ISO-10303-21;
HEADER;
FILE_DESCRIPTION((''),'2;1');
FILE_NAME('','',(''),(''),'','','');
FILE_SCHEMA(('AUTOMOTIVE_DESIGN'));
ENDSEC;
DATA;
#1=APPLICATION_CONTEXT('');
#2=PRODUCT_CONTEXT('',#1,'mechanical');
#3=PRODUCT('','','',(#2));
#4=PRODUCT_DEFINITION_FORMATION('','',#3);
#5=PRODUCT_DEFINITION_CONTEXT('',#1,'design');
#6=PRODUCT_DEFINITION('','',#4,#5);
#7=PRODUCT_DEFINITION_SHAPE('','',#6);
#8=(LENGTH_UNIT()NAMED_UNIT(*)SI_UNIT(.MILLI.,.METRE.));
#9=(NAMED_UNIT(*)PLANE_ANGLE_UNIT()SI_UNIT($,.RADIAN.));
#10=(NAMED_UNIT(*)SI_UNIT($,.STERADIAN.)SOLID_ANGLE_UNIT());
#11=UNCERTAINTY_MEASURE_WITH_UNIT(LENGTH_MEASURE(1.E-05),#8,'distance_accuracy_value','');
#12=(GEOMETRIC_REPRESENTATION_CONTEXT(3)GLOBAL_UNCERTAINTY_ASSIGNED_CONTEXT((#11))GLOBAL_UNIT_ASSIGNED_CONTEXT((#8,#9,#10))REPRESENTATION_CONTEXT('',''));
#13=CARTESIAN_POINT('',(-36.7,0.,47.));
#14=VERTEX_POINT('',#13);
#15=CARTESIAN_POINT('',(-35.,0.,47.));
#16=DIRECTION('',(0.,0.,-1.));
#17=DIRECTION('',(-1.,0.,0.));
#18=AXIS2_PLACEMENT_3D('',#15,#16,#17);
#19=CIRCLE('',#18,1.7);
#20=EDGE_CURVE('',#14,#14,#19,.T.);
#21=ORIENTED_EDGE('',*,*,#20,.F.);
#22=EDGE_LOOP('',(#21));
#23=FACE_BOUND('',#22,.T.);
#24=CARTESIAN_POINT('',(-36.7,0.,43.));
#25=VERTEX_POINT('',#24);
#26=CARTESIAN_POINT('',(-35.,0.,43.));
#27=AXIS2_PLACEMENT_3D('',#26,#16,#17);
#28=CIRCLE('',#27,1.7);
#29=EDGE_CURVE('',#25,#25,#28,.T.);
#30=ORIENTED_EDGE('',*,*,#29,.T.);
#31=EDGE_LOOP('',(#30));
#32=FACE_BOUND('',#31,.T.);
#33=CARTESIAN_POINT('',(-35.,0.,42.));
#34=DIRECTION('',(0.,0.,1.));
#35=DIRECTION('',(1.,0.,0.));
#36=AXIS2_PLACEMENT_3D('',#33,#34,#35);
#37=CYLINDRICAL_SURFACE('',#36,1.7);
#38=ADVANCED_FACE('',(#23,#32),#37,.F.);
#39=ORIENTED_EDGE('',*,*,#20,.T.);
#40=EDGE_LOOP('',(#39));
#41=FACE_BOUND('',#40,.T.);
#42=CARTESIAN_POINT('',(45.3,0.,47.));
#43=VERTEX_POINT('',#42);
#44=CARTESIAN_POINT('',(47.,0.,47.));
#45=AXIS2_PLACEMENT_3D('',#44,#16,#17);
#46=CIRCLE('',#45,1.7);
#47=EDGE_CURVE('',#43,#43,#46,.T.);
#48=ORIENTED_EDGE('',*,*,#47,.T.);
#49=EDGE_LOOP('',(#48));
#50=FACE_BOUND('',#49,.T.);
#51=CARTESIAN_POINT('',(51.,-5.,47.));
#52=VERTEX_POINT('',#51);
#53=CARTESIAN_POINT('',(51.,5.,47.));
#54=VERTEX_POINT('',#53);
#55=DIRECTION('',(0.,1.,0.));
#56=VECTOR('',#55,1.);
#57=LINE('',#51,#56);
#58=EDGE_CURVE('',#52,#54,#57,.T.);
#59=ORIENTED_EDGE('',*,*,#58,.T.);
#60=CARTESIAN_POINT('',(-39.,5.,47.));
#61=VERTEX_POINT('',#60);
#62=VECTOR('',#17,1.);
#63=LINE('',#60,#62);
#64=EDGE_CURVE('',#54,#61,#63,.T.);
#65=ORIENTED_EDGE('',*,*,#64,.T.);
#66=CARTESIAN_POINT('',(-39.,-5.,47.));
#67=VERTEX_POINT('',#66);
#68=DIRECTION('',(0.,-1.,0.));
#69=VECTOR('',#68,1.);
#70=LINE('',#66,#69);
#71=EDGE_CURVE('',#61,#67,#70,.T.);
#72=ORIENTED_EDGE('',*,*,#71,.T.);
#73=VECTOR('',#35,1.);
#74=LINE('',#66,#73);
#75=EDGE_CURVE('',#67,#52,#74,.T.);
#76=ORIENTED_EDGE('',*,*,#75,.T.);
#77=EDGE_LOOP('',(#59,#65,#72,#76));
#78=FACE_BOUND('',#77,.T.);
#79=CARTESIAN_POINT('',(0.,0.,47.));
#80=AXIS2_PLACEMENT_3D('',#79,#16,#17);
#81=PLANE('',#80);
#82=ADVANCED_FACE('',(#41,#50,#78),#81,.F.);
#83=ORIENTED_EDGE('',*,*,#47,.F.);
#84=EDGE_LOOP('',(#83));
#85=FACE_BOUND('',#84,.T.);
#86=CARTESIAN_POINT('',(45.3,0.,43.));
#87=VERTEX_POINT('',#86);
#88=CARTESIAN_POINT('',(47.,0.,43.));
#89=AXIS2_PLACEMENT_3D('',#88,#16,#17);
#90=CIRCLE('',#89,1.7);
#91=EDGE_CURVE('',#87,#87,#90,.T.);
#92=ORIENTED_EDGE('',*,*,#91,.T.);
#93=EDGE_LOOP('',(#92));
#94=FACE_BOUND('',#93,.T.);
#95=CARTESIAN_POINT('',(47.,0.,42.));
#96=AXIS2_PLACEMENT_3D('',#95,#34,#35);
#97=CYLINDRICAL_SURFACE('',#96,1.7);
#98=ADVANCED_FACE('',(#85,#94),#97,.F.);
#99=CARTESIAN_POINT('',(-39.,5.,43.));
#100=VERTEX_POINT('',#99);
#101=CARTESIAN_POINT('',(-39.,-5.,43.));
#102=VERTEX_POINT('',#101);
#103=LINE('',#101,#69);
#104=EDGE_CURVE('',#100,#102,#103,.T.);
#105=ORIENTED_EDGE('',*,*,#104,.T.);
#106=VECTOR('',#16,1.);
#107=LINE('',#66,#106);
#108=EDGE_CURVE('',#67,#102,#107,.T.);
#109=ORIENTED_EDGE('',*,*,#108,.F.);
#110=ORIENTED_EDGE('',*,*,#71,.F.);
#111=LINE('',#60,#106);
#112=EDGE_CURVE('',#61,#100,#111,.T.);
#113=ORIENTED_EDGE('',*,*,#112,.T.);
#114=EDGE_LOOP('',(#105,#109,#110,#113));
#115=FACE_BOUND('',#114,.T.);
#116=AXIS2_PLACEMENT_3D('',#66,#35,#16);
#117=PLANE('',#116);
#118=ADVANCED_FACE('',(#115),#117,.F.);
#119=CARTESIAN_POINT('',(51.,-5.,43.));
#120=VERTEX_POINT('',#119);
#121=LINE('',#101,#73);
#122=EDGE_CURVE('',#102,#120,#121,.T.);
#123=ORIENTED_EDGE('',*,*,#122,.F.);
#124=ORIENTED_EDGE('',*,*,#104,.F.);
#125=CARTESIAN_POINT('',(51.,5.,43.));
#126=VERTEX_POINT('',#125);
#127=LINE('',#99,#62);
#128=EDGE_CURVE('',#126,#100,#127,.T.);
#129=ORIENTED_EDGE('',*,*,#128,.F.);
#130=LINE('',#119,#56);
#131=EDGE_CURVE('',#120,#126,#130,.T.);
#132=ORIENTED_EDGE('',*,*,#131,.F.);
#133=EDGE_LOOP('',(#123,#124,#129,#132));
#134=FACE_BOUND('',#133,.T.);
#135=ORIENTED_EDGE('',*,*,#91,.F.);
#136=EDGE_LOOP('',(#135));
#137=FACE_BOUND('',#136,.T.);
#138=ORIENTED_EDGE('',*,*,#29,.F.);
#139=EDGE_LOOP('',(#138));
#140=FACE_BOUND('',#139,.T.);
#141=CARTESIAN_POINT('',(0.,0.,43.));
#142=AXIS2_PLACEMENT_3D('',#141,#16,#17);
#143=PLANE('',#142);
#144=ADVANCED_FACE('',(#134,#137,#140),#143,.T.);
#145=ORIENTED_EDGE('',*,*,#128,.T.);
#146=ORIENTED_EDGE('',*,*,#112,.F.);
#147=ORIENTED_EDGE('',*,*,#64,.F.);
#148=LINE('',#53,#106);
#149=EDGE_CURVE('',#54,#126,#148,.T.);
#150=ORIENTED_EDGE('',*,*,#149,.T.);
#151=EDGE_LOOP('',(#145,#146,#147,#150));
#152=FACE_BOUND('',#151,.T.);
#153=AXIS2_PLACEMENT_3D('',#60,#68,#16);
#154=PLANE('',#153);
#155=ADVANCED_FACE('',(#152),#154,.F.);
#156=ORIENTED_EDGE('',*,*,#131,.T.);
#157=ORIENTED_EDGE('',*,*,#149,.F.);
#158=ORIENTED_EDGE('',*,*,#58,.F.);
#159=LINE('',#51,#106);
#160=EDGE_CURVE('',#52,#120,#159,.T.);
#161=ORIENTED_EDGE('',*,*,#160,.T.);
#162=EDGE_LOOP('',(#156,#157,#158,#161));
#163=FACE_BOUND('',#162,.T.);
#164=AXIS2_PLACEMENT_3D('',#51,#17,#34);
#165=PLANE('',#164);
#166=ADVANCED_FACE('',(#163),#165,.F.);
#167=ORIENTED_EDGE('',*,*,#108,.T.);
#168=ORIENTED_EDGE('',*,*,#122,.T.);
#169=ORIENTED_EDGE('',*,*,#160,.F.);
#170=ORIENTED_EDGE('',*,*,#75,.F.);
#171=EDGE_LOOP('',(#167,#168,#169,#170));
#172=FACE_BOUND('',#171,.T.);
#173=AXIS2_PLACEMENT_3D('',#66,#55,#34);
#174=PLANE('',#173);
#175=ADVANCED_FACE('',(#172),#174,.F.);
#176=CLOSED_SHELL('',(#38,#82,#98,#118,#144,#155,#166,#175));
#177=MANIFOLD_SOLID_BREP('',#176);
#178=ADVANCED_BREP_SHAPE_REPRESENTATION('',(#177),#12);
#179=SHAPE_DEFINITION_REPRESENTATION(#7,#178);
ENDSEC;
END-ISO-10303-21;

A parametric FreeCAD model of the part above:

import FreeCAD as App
import Part
import Sketcher
Q = App.Units.Quantity

doc = App.newDocument("Part")
body = doc.addObject("PartDesign::Body", "Body")

# Sketch on XY plane
sketch1 = body.newObject("Sketcher::SketchObject", "Sketch")
sketch1.AttachmentSupport = (doc.getObject("XY_Plane"), [""])
sketch1.MapMode = "FlatFace"
sketch1.AttachmentOffset = App.Placement(App.Vector(0, 0, 43), App.Rotation())
sketch1.addGeometry([
    Part.LineSegment(App.Vector(-39, 5, 0), App.Vector(-39, -5, 0)),
    Part.LineSegment(App.Vector(-39, -5, 0), App.Vector(51, -5, 0)),
    Part.LineSegment(App.Vector(51, -5, 0), App.Vector(51, 5, 0)),
    Part.LineSegment(App.Vector(51, 5, 0), App.Vector(-39, 5, 0)),
], False)
sketch1.addConstraint([
    Sketcher.Constraint("Coincident", 0, 2, 1, 1),
    Sketcher.Constraint("Coincident", 1, 2, 2, 1),
    Sketcher.Constraint("Coincident", 2, 2, 3, 1),
    Sketcher.Constraint("Coincident", 3, 2, 0, 1),
    Sketcher.Constraint("Vertical", 0),
    Sketcher.Constraint("Horizontal", 1),
    Sketcher.Constraint("Vertical", 2),
    Sketcher.Constraint("Horizontal", 3),
    Sketcher.Constraint("DistanceX", 1, 1, 1, 2, Q("90 mm")),
    Sketcher.Constraint("DistanceY", 0, 2, 0, 1, Q("10 mm")),
    Sketcher.Constraint("DistanceX", 0, 2, -1, 1, Q("39 mm")),
    Sketcher.Constraint("DistanceY", 0, 2, -1, 1, Q("5 mm")),
])
pad1 = body.newObject("PartDesign::Pad", "Pad")
pad1.Profile = sketch1
pad1.Length = 4

# Sketch on XY plane
sketch2 = body.newObject("Sketcher::SketchObject", "Sketch001")
sketch2.AttachmentSupport = (doc.getObject("XY_Plane"), [""])
sketch2.MapMode = "FlatFace"
sketch2.AttachmentOffset = App.Placement(App.Vector(0, 0, 48), App.Rotation())
sketch2.addGeometry([
    Part.Circle(App.Vector(-35, 0, 0), App.Vector(0, 0, 1), 1.7),
    Part.Circle(App.Vector(47, 0, 0), App.Vector(0, 0, 1), 1.7),
], False)
sketch2.addConstraint([
    Sketcher.Constraint("Equal", 0, 1),
    Sketcher.Constraint("PointOnObject", 0, 3, -1),
    Sketcher.Constraint("PointOnObject", 1, 3, -1),
    Sketcher.Constraint("Diameter", 0, Q("3.4 mm")),
    Sketcher.Constraint("DistanceX", 0, 3, -1, 1, Q("35 mm")),
    Sketcher.Constraint("DistanceX", -1, 1, 1, 3, Q("47 mm")),
])
pocket1 = body.newObject("PartDesign::Pocket", "Pocket")
pocket1.Profile = sketch2
pocket1.Length = 6

doc.recompute()
